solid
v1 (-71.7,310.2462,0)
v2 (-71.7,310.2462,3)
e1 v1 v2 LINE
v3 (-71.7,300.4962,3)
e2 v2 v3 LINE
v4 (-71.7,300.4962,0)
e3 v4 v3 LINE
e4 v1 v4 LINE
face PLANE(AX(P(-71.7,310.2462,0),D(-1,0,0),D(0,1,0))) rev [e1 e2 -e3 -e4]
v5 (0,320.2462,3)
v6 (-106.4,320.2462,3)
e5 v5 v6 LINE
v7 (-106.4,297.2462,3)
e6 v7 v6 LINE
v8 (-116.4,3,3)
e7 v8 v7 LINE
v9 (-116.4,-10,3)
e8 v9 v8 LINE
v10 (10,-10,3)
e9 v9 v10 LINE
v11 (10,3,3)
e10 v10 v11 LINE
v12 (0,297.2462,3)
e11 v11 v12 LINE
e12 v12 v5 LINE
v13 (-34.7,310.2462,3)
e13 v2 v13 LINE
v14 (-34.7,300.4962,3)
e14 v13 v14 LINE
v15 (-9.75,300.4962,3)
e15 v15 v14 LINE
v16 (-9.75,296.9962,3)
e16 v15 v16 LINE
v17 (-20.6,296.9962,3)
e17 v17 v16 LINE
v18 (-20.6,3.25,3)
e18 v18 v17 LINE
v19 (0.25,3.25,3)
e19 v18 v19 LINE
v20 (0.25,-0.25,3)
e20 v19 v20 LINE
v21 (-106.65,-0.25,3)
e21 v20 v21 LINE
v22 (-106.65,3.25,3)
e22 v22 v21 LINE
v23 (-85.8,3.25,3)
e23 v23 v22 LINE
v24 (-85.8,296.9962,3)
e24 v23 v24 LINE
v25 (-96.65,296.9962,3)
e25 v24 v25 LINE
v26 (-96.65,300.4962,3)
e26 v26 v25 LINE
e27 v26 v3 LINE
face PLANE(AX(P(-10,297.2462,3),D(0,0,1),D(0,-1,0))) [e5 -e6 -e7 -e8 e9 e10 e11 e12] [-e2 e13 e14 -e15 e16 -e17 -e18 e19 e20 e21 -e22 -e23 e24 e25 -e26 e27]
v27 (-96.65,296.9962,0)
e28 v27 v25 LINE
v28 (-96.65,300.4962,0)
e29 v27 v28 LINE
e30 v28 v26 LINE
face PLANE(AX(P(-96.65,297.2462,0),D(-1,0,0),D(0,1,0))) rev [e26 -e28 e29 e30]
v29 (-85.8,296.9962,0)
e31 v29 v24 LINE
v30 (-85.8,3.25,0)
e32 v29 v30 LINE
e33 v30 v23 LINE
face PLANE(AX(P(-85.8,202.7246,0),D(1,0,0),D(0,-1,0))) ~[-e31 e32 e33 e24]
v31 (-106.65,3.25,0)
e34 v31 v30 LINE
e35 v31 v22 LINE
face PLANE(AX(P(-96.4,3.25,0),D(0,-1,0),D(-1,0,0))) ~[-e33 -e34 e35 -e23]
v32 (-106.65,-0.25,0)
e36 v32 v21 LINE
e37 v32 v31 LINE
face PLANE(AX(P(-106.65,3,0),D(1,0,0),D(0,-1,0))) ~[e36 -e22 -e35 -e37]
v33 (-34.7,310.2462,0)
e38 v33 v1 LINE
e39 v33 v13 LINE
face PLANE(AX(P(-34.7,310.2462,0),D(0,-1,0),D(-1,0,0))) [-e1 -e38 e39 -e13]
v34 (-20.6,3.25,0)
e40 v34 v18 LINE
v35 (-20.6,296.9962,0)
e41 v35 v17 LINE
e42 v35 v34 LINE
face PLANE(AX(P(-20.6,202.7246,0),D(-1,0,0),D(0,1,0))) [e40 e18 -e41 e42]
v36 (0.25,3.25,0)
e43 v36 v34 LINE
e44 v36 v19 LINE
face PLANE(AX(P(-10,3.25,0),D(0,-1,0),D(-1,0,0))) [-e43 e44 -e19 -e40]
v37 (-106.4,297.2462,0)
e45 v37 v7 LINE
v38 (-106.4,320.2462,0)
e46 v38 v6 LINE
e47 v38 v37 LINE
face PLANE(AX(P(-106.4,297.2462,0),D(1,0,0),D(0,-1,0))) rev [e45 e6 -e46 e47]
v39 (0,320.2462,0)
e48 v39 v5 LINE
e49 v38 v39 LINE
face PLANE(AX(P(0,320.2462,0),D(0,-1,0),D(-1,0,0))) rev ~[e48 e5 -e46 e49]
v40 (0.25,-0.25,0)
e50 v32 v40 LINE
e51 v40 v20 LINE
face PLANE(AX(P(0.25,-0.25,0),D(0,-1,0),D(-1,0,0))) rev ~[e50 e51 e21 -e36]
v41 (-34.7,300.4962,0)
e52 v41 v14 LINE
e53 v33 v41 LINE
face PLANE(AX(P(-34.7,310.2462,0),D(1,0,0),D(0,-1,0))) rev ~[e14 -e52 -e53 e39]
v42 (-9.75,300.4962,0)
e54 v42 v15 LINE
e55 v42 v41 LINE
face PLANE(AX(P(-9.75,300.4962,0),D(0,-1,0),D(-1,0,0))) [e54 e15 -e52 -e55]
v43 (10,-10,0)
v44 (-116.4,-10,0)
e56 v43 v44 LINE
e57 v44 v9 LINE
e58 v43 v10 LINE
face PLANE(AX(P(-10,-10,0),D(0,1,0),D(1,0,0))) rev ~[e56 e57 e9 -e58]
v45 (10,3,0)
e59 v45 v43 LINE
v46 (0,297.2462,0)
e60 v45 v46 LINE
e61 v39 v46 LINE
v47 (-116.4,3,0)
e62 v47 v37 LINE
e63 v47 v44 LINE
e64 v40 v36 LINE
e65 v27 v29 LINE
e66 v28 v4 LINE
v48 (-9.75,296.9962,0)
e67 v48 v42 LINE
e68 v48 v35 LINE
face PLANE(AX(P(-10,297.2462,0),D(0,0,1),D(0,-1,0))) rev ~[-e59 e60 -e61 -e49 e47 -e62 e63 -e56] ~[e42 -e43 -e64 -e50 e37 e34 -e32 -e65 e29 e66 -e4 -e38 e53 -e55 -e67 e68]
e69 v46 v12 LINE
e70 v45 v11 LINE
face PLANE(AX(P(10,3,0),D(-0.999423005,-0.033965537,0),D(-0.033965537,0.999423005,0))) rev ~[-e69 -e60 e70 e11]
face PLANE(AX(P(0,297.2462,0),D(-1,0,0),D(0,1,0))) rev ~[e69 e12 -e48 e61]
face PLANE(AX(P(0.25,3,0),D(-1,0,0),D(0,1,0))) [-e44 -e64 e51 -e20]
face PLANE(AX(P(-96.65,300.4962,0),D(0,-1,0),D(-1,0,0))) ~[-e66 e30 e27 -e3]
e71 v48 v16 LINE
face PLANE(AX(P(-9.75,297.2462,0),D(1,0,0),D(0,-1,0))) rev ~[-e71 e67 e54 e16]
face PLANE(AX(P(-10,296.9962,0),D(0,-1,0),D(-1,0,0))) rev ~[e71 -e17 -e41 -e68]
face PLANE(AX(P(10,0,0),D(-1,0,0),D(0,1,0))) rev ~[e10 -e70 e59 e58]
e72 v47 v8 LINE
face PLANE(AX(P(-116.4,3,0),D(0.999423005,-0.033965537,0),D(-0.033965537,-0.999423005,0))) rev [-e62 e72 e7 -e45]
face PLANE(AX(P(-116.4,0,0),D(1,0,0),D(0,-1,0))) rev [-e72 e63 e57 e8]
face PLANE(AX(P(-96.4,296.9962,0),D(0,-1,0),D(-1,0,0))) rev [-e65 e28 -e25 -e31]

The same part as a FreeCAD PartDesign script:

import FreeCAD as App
import Part
import Sketcher

V = App.Vector
Q = App.Units.Quantity


def add_polygon(sketch, points):
    """Adds a closed chain of lines whose ends are joined by coincident constraints."""
    first, n = sketch.GeometryCount, len(points)
    for a, b in zip(points, points[1:] + points[:1]):
        sketch.addGeometry(Part.LineSegment(App.Vector(*a, 0), App.Vector(*b, 0)), False)
    for i in range(n):
        sketch.addConstraint(Sketcher.Constraint("Coincident", first + i, 2, first + (i + 1) % n, 1))

doc = App.newDocument("Part")
body = doc.addObject("PartDesign::Body", "Body")

sketch1 = body.newObject("Sketcher::SketchObject", "Sketch")
sketch1.AttachmentSupport = (doc.getObject("XY_Plane"), [""])
sketch1.MapMode = "FlatFace"
add_polygon(sketch1, [(-20.6, 297), (-20.6, 3.2), (0.2, 3.2), (0.2, -0.2), (-53.2, -0.2), (-53.2, -10), (10, -10), (10, 3), (0, 297.2), (0, 320.2), (-53.2, 320.2), (-53.2, 310.2), (-34.7, 310.2), (-34.7, 300.5), (-9.8, 300.5), (-9.8, 297)])
sketch1.addConstraint(Sketcher.Constraint("Vertical", 0))
sketch1.addConstraint(Sketcher.Constraint("Horizontal", 1))
sketch1.addConstraint(Sketcher.Constraint("Vertical", 2))
sketch1.addConstraint(Sketcher.Constraint("Horizontal", 3))
sketch1.addConstraint(Sketcher.Constraint("Vertical", 4))
sketch1.addConstraint(Sketcher.Constraint("Horizontal", 5))
sketch1.addConstraint(Sketcher.Constraint("Vertical", 6))
sketch1.addConstraint(Sketcher.Constraint("Vertical", 8))
sketch1.addConstraint(Sketcher.Constraint("Horizontal", 9))
sketch1.addConstraint(Sketcher.Constraint("Vertical", 10))
sketch1.addConstraint(Sketcher.Constraint("Horizontal", 11))
sketch1.addConstraint(Sketcher.Constraint("Vertical", 12))
sketch1.addConstraint(Sketcher.Constraint("Horizontal", 13))
sketch1.addConstraint(Sketcher.Constraint("Vertical", 14))
sketch1.addConstraint(Sketcher.Constraint("Horizontal", 15))
sketch1.addConstraint(Sketcher.Constraint("PointOnObject", 7, 2, -2))
sketch1.addConstraint(Sketcher.Constraint("Vertical", 4, 2, 9, 2))
sketch1.addConstraint(Sketcher.Constraint("Equal", 4, 12))
sketch1.addConstraint(Sketcher.Constraint("Equal", 2, 14))
sketch1.addConstraint(Sketcher.Constraint("DistanceY", 10, 2, 10, 1, Q("10 mm")))
sketch1.addConstraint(Sketcher.Constraint("DistanceY", 4, 2, -1, 1, Q("10 mm")))
sketch1.addConstraint(Sketcher.Constraint("DistanceX", -1, 1, 5, 2, Q("10 mm")))
sketch1.addConstraint(Sketcher.Constraint("DistanceY", 6, 1, 6, 2, Q("13 mm")))
sketch1.addConstraint(Sketcher.Constraint("DistanceY", 8, 1, 8, 2, Q("23 mm")))
sketch1.addConstraint(Sketcher.Constraint("DistanceX", -1, 1, 1, 2, Q("0.25 mm")))
sketch1.addConstraint(Sketcher.Constraint("DistanceY", 2, 2, -1, 1, Q("0.25 mm")))
sketch1.addConstraint(Sketcher.Constraint("DistanceY", 6, 2, 1, 2, Q("0.25 mm")))
sketch1.addConstraint(Sketcher.Constraint("DistanceX", 5, 1, 5, 2, Q("63.2 mm")))
sketch1.addConstraint(Sketcher.Constraint("DistanceX", 11, 1, 11, 2, Q("18.5 mm")))
sketch1.addConstraint(Sketcher.Constraint("DistanceX", 1, 1, 1, 2, Q("20.85 mm")))
sketch1.addConstraint(Sketcher.Constraint("DistanceX", 13, 1, 13, 2, Q("24.95 mm")))
sketch1.addConstraint(Sketcher.Constraint("Distance", 7, Q("294.416 mm")))
pad1 = body.newObject("PartDesign::Pad", "Pad")
pad1.Profile = sketch1
pad1.Length = 3
doc.recompute()

datumplane = body.newObject("PartDesign::Plane", "DatumPlane")
datumplane.AttachmentSupport = (doc.getObject("YZ_Plane"), [""])
datumplane.MapMode = "FlatFace"
datumplane.AttachmentOffset = App.Placement(V(0, 0, -53.2), App.Rotation())
mirrored = body.newObject("PartDesign::Mirrored", "Mirrored")
mirrored.TransformMode = "Transform body"
mirrored.MirrorPlane = (datumplane, [""])
body.Tip = mirrored

doc.recompute()
